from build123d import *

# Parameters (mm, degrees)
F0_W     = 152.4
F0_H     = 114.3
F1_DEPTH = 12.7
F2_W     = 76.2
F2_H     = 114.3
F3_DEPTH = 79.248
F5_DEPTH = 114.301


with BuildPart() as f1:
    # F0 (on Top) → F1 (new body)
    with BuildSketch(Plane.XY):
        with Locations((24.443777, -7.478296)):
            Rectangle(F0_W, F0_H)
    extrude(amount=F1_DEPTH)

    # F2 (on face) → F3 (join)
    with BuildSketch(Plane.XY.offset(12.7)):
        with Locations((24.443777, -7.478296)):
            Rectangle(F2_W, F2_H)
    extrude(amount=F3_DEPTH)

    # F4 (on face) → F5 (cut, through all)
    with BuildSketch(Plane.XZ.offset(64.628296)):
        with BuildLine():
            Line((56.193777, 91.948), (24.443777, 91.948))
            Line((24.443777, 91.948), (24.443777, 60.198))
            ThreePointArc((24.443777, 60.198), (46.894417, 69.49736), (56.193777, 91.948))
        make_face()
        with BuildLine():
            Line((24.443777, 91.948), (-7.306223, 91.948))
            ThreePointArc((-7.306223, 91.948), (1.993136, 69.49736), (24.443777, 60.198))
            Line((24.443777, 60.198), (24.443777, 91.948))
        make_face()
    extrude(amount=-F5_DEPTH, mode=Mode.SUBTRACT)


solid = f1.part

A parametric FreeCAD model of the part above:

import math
import FreeCAD as App
import Part
import Sketcher
Q = App.Units.Quantity


def add_polygon(sketch, points):
    """Adds a closed chain of lines whose ends are joined by coincident constraints."""
    first, n = sketch.GeometryCount, len(points)
    for a, b in zip(points, points[1:] + points[:1]):
        sketch.addGeometry(Part.LineSegment(App.Vector(*a, 0), App.Vector(*b, 0)), False)
    for i in range(n):
        sketch.addConstraint(Sketcher.Constraint("Coincident", first + i, 2, first + (i + 1) % n, 1))

doc = App.newDocument("Part")
params = doc.addObject("Spreadsheet::Sheet", "Params")
for row, (alias, value) in enumerate([
    ("sketch1_width", "6 in"),
    ("sketch1_height", "4.5 in"),
    ("pad1_length", "0.5 in"),
    ("sketch2_width", "3 in"),
    ("sketch2_height", "4.5 in"),
    ("pad2_length", "3.12 in"),
    ("sketch3_radius", "1.25 in"),
], start=1):
    params.set(f"A{row}", alias)
    params.set(f"B{row}", "=" + value)
    params.setAlias(f"B{row}", alias)

body = doc.addObject("PartDesign::Body", "Body")

sketch1 = body.newObject("Sketcher::SketchObject", "Sketch")
sketch1.AttachmentSupport = (doc.getObject("XY_Plane"), [""])
sketch1.MapMode = "FlatFace"
add_polygon(sketch1, [(-52, 50), (-52, -65), (101, -65), (101, 50)])
sketch1.addConstraint(Sketcher.Constraint("Vertical", 0))
sketch1.addConstraint(Sketcher.Constraint("Horizontal", 1))
sketch1.addConstraint(Sketcher.Constraint("Vertical", 2))
sketch1.addConstraint(Sketcher.Constraint("Horizontal", 3))
sketch1.addConstraint(Sketcher.Constraint("DistanceX", 1, 1, 1, 2, Q("6 in")))
sketch1.addConstraint(Sketcher.Constraint("DistanceY", 0, 2, 0, 1, Q("4.5 in")))
sketch1.addConstraint(Sketcher.Constraint("DistanceX", 0, 2, -1, 1, 51.756223))
sketch1.addConstraint(Sketcher.Constraint("DistanceY", 0, 2, -1, 1, 64.628296))
sketch1.setExpression("Constraints[8]", "Params.sketch1_width")
sketch1.setExpression("Constraints[9]", "Params.sketch1_height")
pad1 = body.newObject("PartDesign::Pad", "Pad")
pad1.Profile = sketch1
pad1.setExpression("Length", "Params.pad1_length")

sketch2 = body.newObject("Sketcher::SketchObject", "Sketch001")
sketch2.AttachmentSupport = (doc.getObject("XY_Plane"), [""])
sketch2.MapMode = "FlatFace"
sketch2.AttachmentOffset = App.Placement(App.Vector(0, 0, 0.5 * 25.4), App.Rotation())
add_polygon(sketch2, [(-14, 50), (-14, -65), (63, -65), (63, 50)])
sketch2.addConstraint(Sketcher.Constraint("Vertical", 0))
sketch2.addConstraint(Sketcher.Constraint("Horizontal", 1))
sketch2.addConstraint(Sketcher.Constraint("Vertical", 2))
sketch2.addConstraint(Sketcher.Constraint("Horizontal", 3))
sketch2.addConstraint(Sketcher.Constraint("DistanceX", 1, 1, 1, 2, Q("3 in")))
sketch2.addConstraint(Sketcher.Constraint("DistanceY", 0, 2, 0, 1, Q("4.5 in")))
sketch2.addConstraint(Sketcher.Constraint("DistanceX", 0, 2, -1, 1, 13.656223))
sketch2.addConstraint(Sketcher.Constraint("DistanceY", 0, 2, -1, 1, 64.628296))
sketch2.setExpression("Constraints[8]", "Params.sketch2_width")
sketch2.setExpression("Constraints[9]", "Params.sketch2_height")
pad2 = body.newObject("PartDesign::Pad", "Pad001")
pad2.Profile = sketch2
pad2.setExpression("Length", "Params.pad2_length")

sketch3 = body.newObject("Sketcher::SketchObject", "Sketch002")
sketch3.AttachmentSupport = (doc.getObject("XZ_Plane"), [""])
sketch3.MapMode = "FlatFace"
sketch3.AttachmentOffset = App.Placement(App.Vector(0, 0, 64.628296), App.Rotation())
sketch3.addGeometry(Part.LineSegment(App.Vector(56, 92, 0), App.Vector(-7, 92, 0)), False)
sketch3.addGeometry(Part.ArcOfCircle(Part.Circle(App.Vector(24, 92, 0), App.Vector(0, 0, 1), 32), math.radians(180), math.radians(270)), False)
sketch3.addGeometry(Part.ArcOfCircle(Part.Circle(App.Vector(24, 92, 0), App.Vector(0, 0, 1), 32), math.radians(-90), math.radians(0)), False)
sketch3.addConstraint(Sketcher.Constraint("Coincident", 0, 2, 1, 1))
sketch3.addConstraint(Sketcher.Constraint("Tangent", 1, 2, 2, 1))
sketch3.addConstraint(Sketcher.Constraint("Coincident", 2, 2, 0, 1))
sketch3.addConstraint(Sketcher.Constraint("Horizontal", 0))
sketch3.addConstraint(Sketcher.Constraint("Equal", 1, 2))
sketch3.addConstraint(Sketcher.Constraint("Horizontal", 2, 3, 0, 2))
sketch3.addConstraint(Sketcher.Constraint("Vertical", 2, 3, 1, 2))
sketch3.addConstraint(Sketcher.Constraint("Radius", 1, Q("1.25 in")))
sketch3.addConstraint(Sketcher.Constraint("DistanceY", -1, 1, 1, 3, Q("3.62 in")))
sketch3.addConstraint(Sketcher.Constraint("DistanceX", -1, 1, 1, 3, 24.443776))
sketch3.setExpression("Constraints[7]", "Params.sketch3_radius")
pocket1 = body.newObject("PartDesign::Pocket", "Pocket")
pocket1.Profile = sketch3
pocket1.Type = "ThroughAll"

doc.recompute()
